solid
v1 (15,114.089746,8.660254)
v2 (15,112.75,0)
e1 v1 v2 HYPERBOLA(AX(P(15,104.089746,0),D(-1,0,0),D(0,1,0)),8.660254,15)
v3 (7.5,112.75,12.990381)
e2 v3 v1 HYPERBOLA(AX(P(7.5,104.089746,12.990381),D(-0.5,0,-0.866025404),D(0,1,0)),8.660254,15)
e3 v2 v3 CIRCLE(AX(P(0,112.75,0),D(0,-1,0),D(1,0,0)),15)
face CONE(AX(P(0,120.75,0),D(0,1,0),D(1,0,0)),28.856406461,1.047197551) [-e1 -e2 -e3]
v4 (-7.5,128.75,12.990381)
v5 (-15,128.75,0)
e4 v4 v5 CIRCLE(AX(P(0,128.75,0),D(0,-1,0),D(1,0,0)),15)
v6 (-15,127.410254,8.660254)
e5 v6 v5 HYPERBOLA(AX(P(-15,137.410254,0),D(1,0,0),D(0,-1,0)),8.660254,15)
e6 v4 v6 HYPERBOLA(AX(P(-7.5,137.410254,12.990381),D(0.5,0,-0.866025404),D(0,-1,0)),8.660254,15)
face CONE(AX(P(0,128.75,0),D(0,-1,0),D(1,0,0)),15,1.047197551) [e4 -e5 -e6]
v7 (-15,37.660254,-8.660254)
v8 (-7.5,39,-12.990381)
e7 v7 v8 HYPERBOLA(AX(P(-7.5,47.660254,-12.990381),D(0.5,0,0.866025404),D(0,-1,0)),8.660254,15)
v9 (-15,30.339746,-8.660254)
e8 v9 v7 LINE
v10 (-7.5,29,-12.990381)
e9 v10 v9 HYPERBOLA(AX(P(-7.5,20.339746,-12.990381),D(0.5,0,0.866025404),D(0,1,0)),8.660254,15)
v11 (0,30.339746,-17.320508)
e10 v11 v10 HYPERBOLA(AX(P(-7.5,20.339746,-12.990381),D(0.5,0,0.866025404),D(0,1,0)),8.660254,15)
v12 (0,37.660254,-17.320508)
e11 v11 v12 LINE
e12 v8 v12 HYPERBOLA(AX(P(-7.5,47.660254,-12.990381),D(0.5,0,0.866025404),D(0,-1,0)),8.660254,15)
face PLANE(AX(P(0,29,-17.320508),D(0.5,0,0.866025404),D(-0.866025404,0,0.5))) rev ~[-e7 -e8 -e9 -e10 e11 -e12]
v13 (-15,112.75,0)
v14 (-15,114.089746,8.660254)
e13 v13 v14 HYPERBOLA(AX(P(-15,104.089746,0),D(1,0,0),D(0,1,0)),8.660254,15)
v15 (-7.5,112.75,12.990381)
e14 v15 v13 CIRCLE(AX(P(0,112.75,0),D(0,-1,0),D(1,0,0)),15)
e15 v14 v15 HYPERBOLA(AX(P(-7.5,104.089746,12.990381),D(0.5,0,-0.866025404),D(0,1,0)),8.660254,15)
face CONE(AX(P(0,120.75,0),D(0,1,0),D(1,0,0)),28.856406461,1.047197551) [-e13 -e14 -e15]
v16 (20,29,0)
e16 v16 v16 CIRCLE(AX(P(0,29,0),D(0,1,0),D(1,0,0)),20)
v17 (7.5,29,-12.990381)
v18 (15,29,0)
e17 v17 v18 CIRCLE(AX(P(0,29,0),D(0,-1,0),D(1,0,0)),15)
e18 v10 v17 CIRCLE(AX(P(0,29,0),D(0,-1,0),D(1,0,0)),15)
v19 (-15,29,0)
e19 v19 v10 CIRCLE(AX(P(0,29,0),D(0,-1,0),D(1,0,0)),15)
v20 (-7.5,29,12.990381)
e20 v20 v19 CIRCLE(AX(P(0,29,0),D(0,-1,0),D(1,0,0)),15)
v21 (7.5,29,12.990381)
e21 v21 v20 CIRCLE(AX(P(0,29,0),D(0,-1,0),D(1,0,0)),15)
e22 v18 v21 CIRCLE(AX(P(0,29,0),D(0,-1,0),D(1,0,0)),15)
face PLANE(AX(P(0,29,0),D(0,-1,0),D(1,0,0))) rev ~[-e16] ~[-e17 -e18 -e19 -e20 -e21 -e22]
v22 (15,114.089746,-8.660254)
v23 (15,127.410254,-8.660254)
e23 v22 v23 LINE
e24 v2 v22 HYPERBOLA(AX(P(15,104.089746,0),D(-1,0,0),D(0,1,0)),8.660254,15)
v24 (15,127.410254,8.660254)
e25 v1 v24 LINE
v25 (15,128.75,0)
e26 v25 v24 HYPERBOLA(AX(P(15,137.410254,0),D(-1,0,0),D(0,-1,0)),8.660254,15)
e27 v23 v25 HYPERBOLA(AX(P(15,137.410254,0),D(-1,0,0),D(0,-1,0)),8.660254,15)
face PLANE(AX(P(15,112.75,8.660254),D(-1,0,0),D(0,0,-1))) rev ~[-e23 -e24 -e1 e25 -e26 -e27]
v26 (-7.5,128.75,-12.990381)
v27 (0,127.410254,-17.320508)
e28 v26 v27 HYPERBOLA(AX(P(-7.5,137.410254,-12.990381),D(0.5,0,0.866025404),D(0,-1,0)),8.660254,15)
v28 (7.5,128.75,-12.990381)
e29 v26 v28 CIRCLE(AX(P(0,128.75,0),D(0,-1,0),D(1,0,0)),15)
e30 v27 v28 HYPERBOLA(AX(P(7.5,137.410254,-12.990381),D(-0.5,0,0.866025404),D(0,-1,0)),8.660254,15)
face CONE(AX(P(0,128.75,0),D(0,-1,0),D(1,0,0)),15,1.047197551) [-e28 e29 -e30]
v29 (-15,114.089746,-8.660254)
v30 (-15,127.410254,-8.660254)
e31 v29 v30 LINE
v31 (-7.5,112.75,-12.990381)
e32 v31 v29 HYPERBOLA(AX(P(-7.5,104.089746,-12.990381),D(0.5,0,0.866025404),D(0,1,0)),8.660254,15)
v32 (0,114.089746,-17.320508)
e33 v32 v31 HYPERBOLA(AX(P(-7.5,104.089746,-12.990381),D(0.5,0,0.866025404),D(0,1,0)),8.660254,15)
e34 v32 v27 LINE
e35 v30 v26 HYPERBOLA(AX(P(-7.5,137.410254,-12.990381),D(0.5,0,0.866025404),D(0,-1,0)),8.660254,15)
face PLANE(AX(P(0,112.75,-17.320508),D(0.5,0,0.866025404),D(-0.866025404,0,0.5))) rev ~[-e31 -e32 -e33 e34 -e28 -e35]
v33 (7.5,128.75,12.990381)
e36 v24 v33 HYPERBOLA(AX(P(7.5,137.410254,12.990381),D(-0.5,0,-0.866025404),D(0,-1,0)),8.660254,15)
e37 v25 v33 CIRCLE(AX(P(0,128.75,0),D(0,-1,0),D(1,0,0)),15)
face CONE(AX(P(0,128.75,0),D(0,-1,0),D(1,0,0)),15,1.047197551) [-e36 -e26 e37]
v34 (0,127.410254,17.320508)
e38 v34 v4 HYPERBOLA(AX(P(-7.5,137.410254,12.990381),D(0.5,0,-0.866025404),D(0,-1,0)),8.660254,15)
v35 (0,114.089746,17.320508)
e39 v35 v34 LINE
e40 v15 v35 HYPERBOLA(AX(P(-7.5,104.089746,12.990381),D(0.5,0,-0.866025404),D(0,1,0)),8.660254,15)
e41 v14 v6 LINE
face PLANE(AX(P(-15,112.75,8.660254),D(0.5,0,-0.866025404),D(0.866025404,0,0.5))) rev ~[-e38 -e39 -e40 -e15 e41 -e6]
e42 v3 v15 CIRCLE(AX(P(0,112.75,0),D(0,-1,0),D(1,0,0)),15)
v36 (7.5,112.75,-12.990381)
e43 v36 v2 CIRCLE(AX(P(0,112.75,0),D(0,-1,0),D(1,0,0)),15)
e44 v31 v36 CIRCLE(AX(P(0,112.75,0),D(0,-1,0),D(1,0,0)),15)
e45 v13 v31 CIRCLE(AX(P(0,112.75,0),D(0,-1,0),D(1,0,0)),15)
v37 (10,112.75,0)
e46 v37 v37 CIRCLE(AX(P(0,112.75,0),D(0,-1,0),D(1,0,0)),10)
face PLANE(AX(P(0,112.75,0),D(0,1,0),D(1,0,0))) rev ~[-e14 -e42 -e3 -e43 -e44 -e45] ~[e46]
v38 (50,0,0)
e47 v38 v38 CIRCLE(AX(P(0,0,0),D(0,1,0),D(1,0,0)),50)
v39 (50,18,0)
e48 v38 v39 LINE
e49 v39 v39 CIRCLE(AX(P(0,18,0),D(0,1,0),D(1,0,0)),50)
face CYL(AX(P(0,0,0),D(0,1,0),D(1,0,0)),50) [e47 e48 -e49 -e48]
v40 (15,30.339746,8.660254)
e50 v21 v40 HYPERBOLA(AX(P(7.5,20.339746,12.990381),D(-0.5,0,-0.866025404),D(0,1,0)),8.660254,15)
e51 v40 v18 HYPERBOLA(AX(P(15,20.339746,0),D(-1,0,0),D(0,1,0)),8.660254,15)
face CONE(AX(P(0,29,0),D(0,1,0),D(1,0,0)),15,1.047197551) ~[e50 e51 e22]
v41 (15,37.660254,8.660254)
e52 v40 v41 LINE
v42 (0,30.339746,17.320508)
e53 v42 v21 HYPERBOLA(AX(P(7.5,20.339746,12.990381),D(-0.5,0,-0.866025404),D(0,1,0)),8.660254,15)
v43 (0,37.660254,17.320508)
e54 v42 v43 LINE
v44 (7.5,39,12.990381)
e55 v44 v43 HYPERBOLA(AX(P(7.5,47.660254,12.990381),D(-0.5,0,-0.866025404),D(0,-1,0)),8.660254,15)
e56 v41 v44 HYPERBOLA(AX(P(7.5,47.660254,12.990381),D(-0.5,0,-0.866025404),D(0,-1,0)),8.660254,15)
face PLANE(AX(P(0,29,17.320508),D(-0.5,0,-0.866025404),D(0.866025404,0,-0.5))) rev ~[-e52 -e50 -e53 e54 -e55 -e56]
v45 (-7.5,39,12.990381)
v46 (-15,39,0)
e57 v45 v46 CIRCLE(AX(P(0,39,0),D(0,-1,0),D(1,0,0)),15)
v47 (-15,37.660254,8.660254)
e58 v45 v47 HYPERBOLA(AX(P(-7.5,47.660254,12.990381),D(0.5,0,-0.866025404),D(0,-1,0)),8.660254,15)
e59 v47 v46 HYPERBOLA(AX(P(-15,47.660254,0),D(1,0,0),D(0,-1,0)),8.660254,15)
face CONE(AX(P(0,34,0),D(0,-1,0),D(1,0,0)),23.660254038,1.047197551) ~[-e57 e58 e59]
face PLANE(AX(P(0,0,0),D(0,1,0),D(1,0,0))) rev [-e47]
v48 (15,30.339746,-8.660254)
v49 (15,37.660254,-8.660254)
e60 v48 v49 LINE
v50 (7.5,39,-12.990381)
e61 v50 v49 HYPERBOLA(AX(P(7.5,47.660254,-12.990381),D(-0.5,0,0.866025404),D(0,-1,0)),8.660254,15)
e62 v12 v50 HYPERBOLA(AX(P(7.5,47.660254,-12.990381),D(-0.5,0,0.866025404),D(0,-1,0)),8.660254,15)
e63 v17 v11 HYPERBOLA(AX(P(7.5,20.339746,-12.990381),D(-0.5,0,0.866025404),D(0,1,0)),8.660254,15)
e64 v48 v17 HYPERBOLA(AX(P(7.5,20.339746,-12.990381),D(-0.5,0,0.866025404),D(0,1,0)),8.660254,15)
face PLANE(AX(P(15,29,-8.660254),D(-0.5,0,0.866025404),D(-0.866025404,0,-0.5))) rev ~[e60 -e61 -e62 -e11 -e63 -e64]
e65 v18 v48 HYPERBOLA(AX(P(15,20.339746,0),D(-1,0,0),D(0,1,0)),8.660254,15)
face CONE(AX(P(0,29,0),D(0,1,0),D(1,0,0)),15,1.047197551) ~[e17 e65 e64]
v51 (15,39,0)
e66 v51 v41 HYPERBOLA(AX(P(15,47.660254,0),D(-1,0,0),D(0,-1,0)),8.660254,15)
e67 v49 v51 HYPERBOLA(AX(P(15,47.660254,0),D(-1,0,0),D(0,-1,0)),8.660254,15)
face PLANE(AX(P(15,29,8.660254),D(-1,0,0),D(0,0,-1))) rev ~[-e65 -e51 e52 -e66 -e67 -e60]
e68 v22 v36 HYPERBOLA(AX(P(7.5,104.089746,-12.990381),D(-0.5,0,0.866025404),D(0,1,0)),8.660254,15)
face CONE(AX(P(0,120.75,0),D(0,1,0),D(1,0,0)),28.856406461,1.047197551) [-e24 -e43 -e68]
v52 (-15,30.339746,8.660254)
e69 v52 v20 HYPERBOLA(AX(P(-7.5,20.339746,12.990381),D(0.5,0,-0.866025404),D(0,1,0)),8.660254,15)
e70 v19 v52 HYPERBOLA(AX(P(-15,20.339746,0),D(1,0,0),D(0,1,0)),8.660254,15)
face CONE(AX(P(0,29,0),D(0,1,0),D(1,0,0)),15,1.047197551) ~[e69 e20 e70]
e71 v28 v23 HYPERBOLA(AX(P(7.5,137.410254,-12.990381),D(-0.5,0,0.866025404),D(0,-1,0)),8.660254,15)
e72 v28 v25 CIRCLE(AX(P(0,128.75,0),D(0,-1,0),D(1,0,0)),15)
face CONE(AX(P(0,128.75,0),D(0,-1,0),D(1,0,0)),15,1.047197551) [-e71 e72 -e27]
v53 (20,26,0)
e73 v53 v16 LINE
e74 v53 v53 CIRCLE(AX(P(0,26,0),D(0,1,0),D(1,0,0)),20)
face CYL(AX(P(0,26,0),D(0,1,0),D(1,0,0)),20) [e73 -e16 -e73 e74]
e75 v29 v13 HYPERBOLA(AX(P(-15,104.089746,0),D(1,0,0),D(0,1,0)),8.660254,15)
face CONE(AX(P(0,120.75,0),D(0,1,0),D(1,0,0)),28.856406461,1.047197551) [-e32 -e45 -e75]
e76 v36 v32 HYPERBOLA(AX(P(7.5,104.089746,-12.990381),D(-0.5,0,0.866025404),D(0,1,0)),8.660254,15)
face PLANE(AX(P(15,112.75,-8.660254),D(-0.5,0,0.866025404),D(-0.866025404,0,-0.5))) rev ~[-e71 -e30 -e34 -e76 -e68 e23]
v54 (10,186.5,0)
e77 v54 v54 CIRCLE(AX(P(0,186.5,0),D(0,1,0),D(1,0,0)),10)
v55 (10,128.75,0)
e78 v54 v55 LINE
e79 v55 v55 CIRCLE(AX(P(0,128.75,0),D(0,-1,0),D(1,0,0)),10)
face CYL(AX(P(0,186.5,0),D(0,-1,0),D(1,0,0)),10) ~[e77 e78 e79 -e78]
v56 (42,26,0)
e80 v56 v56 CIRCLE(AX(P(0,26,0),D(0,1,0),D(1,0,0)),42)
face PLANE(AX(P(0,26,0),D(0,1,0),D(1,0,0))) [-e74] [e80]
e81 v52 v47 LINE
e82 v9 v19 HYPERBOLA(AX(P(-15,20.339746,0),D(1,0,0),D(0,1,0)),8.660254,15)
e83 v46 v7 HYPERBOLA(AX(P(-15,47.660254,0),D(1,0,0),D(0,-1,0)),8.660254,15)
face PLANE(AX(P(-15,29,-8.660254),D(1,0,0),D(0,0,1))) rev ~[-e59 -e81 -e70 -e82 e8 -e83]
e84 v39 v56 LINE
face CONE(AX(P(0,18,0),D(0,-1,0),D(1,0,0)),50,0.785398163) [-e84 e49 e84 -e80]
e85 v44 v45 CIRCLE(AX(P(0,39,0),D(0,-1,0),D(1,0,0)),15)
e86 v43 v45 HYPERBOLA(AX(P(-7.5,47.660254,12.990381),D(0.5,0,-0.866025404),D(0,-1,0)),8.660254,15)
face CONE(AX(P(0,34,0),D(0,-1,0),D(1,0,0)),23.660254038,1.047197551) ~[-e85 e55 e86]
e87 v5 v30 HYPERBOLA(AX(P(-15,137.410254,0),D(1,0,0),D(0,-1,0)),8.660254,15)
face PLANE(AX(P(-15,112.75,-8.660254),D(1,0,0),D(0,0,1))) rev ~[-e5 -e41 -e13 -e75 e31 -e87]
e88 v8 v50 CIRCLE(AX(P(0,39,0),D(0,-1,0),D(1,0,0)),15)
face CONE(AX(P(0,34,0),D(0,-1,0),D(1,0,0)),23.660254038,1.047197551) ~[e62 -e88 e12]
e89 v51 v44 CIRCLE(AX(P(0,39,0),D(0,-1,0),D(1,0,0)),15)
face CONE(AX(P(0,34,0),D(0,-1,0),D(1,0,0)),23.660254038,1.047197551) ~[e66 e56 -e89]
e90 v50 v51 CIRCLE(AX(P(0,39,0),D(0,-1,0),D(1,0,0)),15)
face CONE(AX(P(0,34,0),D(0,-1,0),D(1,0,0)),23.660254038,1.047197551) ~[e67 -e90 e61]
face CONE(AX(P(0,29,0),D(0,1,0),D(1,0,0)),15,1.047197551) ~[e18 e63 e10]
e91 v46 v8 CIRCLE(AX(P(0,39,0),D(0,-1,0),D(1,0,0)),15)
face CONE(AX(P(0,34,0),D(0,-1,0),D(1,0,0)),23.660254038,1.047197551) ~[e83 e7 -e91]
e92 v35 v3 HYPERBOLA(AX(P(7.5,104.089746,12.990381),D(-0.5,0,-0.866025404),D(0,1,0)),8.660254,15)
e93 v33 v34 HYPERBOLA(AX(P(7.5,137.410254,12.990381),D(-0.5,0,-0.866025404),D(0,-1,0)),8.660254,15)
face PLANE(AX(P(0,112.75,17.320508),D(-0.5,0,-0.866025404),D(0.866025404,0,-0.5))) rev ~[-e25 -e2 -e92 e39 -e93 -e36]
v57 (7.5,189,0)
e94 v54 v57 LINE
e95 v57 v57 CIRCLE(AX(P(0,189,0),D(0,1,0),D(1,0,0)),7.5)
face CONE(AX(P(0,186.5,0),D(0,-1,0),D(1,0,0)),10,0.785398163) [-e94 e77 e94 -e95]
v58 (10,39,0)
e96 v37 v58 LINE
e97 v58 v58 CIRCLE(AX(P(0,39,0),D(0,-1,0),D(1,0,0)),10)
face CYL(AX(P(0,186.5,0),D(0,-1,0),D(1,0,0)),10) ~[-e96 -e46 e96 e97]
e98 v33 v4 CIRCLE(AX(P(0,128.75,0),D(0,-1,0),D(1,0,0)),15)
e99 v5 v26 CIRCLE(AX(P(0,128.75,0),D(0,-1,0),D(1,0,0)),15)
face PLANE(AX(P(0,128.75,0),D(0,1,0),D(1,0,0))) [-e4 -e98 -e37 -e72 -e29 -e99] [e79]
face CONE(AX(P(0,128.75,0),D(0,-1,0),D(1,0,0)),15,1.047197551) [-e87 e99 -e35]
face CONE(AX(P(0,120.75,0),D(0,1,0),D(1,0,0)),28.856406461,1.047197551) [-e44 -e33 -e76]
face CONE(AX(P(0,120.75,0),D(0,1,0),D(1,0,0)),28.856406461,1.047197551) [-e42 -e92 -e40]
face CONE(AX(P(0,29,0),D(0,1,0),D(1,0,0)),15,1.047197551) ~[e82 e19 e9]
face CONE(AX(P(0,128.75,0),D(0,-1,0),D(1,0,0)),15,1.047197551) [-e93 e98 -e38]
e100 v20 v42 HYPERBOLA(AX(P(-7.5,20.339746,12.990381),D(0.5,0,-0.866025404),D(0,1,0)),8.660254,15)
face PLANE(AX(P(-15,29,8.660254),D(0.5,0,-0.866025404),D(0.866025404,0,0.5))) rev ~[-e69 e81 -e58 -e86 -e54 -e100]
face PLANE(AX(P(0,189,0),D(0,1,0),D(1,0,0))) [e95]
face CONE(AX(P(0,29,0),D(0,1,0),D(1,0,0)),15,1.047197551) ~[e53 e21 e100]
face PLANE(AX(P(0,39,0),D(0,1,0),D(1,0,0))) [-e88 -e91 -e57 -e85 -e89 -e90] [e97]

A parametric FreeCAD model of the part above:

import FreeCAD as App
import Part
import Sketcher

V = App.Vector
Q = App.Units.Quantity


def add_polygon(sketch, points):
    """Adds a closed chain of lines whose ends are joined by coincident constraints."""
    first, n = sketch.GeometryCount, len(points)
    for a, b in zip(points, points[1:] + points[:1]):
        sketch.addGeometry(Part.LineSegment(App.Vector(*a, 0), App.Vector(*b, 0)), False)
    for i in range(n):
        sketch.addConstraint(Sketcher.Constraint("Coincident", first + i, 2, first + (i + 1) % n, 1))

doc = App.newDocument("Part")
body = doc.addObject("PartDesign::Body", "Body")

# Sketch on XY plane
sketch1 = body.newObject("Sketcher::SketchObject", "Sketch")
sketch1.AttachmentSupport = (doc.getObject("XY_Plane"), [""])
sketch1.MapMode = "FlatFace"
add_polygon(sketch1, [(-50, 0), (0, 0), (0, 189), (-7.5, 189), (-10, 186.5), (-10, 29), (-20, 29), (-20, 26), (-42, 26), (-50, 18)])  # lines 0-9
sketch1.addConstraint(Sketcher.Constraint("Horizontal", 0))
sketch1.addConstraint(Sketcher.Constraint("Vertical", 1))
sketch1.addConstraint(Sketcher.Constraint("Horizontal", 2))
sketch1.addConstraint(Sketcher.Constraint("Vertical", 4))
sketch1.addConstraint(Sketcher.Constraint("Horizontal", 5))
sketch1.addConstraint(Sketcher.Constraint("Vertical", 6))
sketch1.addConstraint(Sketcher.Constraint("Horizontal", 7))
sketch1.addConstraint(Sketcher.Constraint("Vertical", 9))
sketch1.addConstraint(Sketcher.Constraint("Coincident", 0, 2, -1, 1))
sketch1.addConstraint(Sketcher.Constraint("Parallel", 3, 8))
sketch1.addConstraint(Sketcher.Constraint("DistanceX", 0, 1, 0, 2, Q("50 mm")))
sketch1.addConstraint(Sketcher.Constraint("DistanceX", 5, 2, 5, 1, Q("10 mm")))
sketch1.addConstraint(Sketcher.Constraint("DistanceX", 7, 2, 7, 1, Q("22 mm")))
sketch1.addConstraint(Sketcher.Constraint("DistanceY", 1, 1, 1, 2, Q("189 mm")))
sketch1.addConstraint(Sketcher.Constraint("DistanceY", 6, 2, 6, 1, Q("3 mm")))
sketch1.addConstraint(Sketcher.Constraint("DistanceY", 9, 2, 9, 1, Q("18 mm")))
sketch1.addConstraint(Sketcher.Constraint("Angle", 3, Q("-135 deg")))
sketch1.addConstraint(Sketcher.Constraint("DistanceX", 2, 2, 2, 1, Q("7.5 mm")))
sketch1.addConstraint(Sketcher.Constraint("DistanceX", 3, 2, -1, 1, Q("10 mm")))
revolution = body.newObject("PartDesign::Revolution", "Revolution")
revolution.Profile = sketch1
revolution.ReferenceAxis = (sketch1, ["V_Axis"])
revolution.Angle = 360

# Sketch on XZ plane
sketch2 = body.newObject("Sketcher::SketchObject", "Sketch001")
sketch2.AttachmentSupport = (doc.getObject("XZ_Plane"), [""])
sketch2.MapMode = "FlatFace"
sketch2.AttachmentOffset = App.Placement(V(0, 0, -29), App.Rotation())
add_polygon(sketch2, [(0, -17), (-15, -9), (-15, 9), (0, 17), (15, 9), (15, -9)])  # lines 0-5
sketch2.addConstraint(Sketcher.Constraint("Vertical", 1))
sketch2.addConstraint(Sketcher.Constraint("Vertical", 4))
sketch2.addConstraint(Sketcher.Constraint("Symmetric", 0, 2, 3, 2, -1, 1))
sketch2.addConstraint(Sketcher.Constraint("Symmetric", 2, 2, 5, 2, -1, 1))
sketch2.addConstraint(Sketcher.Constraint("PointOnObject", 2, 2, -2))
sketch2.addConstraint(Sketcher.Constraint("Parallel", 2, 5))
sketch2.addConstraint(Sketcher.Constraint("Horizontal", 1, 2, 3, 2))
sketch2.addConstraint(Sketcher.Constraint("Angle", 0, Q("150 deg")))
sketch2.addConstraint(Sketcher.Constraint("DistanceX", 0, 2, -1, 1, Q("15 mm")))
sketch2.addConstraint(Sketcher.Constraint("DistanceY", 1, 1, 1, 2, Q("17.320508 mm")))
pad1 = body.newObject("PartDesign::Pad", "Pad")
pad1.Profile = sketch2
pad1.Length = 10
pad1.Reversed = True

# Sketch on XZ plane
sketch3 = body.newObject("Sketcher::SketchObject", "Sketch002")
sketch3.AttachmentSupport = (doc.getObject("XZ_Plane"), [""])
sketch3.MapMode = "FlatFace"
sketch3.AttachmentOffset = App.Placement(V(0, 0, -112.75), App.Rotation())
add_polygon(sketch3, [(15, -9), (0, -17), (-15, -9), (-15, 9), (0, 17), (15, 9)])  # lines 0-5
sketch3.addConstraint(Sketcher.Constraint("Vertical", 2))
sketch3.addConstraint(Sketcher.Constraint("Vertical", 5))
sketch3.addConstraint(Sketcher.Constraint("Symmetric", 0, 2, 3, 2, -1, 1))
sketch3.addConstraint(Sketcher.Constraint("Symmetric", 1, 2, 4, 2, -1, 1))
sketch3.addConstraint(Sketcher.Constraint("PointOnObject", 0, 2, -2))
sketch3.addConstraint(Sketcher.Constraint("Parallel", 0, 3))
sketch3.addConstraint(Sketcher.Constraint("Horizontal", 2, 2, 4, 2))
sketch3.addConstraint(Sketcher.Constraint("Angle", 0, Q("-150 deg")))
sketch3.addConstraint(Sketcher.Constraint("DistanceX", 1, 2, -1, 1, Q("15 mm")))
sketch3.addConstraint(Sketcher.Constraint("DistanceY", 2, 1, 2, 2, Q("17.320508 mm")))
pad2 = body.newObject("PartDesign::Pad", "Pad001")
pad2.Profile = sketch3
pad2.Length = 16
pad2.Reversed = True

# Sketch on XY plane
sketch4 = body.newObject("Sketcher::SketchObject", "Sketch003")
sketch4.AttachmentSupport = (doc.getObject("XY_Plane"), [""])
sketch4.MapMode = "FlatFace"
add_polygon(sketch4, [(-15, 129), (-29, 129), (-29, 121)])  # lines 0-2
add_polygon(sketch4, [(-29, 121), (-29, 113), (-15, 113)])  # lines 3-5
add_polygon(sketch4, [(-24, 39), (-24, 34), (-15, 39)])  # lines 6-8
add_polygon(sketch4, [(-24, 34), (-24, 29), (-15, 29)])  # lines 9-11
sketch4.addConstraint(Sketcher.Constraint("Horizontal", 0))
sketch4.addConstraint(Sketcher.Constraint("Vertical", 1))
sketch4.addConstraint(Sketcher.Constraint("Vertical", 3))
sketch4.addConstraint(Sketcher.Constraint("Horizontal", 4))
sketch4.addConstraint(Sketcher.Constraint("Vertical", 6))
sketch4.addConstraint(Sketcher.Constraint("Horizontal", 8))
sketch4.addConstraint(Sketcher.Constraint("Vertical", 9))
sketch4.addConstraint(Sketcher.Constraint("Horizontal", 10))
sketch4.addConstraint(Sketcher.Constraint("Coincident", 5, 2, 1, 2))
sketch4.addConstraint(Sketcher.Constraint("Coincident", 11, 2, 6, 2))
sketch4.addConstraint(Sketcher.Constraint("Parallel", 2, 7))
sketch4.addConstraint(Sketcher.Constraint("Parallel", 5, 11))
sketch4.addConstraint(Sketcher.Constraint("Vertical", 2, 2, 4, 2))
sketch4.addConstraint(Sketcher.Constraint("Vertical", 4, 2, 7, 2))
sketch4.addConstraint(Sketcher.Constraint("Vertical", 7, 2, 10, 2))
sketch4.addConstraint(Sketcher.Constraint("Equal", 1, 3))
sketch4.addConstraint(Sketcher.Constraint("DistanceY", 1, 2, 1, 1, Q("8 mm")))
sketch4.addConstraint(Sketcher.Constraint("DistanceY", 6, 2, 6, 1, Q("5 mm")))
sketch4.addConstraint(Sketcher.Constraint("Angle", 2, Q("30 deg")))
sketch4.addConstraint(Sketcher.Constraint("DistanceX", 2, 2, -1, 1, Q("15 mm")))
sketch4.addConstraint(Sketcher.Constraint("DistanceY", -1, 1, 6, 2, Q("34 mm")))
sketch4.addConstraint(Sketcher.Constraint("DistanceY", -1, 1, 0, 2, Q("128.75 mm")))
groove = body.newObject("PartDesign::Groove", "Groove")
groove.Profile = sketch4
groove.ReferenceAxis = (sketch4, ["V_Axis"])
groove.Angle = 360

doc.recompute()
